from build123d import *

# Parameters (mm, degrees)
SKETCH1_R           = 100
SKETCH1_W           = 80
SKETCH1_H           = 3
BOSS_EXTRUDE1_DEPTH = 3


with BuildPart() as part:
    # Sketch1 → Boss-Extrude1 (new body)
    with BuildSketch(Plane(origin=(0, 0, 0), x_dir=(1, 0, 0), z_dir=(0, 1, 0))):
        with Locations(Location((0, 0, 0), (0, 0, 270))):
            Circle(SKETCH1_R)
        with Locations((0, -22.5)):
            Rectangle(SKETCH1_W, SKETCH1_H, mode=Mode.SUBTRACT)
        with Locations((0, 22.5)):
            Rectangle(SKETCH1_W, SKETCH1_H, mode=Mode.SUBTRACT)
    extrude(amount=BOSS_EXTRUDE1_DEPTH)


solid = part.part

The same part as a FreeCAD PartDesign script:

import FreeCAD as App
import Part
import Sketcher

V = App.Vector


def add_polygon(sketch, points):
    """Adds a closed chain of lines whose ends are joined by coincident constraints."""
    first, n = sketch.GeometryCount, len(points)
    for a, b in zip(points, points[1:] + points[:1]):
        sketch.addGeometry(Part.LineSegment(App.Vector(*a, 0), App.Vector(*b, 0)), False)
    for i in range(n):
        sketch.addConstraint(Sketcher.Constraint("Coincident", first + i, 2, first + (i + 1) % n, 1))

doc = App.newDocument("Part")
body = doc.addObject("PartDesign::Body", "Body")

# Sketch on XZ plane
sketch1 = body.newObject("Sketcher::SketchObject", "Sketch")
sketch1.AttachmentSupport = (doc.getObject("XZ_Plane"), [""])
sketch1.MapMode = "FlatFace"
sketch1.addGeometry(Part.Circle(V(0, 0, 0), V(0, 0, 1), 100), False)  # 0
add_polygon(sketch1, [(40, -21), (-40, -21), (-40, -24), (40, -24)])  # lines 1-4
add_polygon(sketch1, [(40, 24), (-40, 24), (-40, 21), (40, 21)])  # lines 5-8
sketch1.addConstraint([
    Sketcher.Constraint("Horizontal", 1),
    Sketcher.Constraint("Vertical", 2),
    Sketcher.Constraint("Horizontal", 3),
    Sketcher.Constraint("Vertical", 4),
    Sketcher.Constraint("Horizontal", 5),
    Sketcher.Constraint("Vertical", 6),
    Sketcher.Constraint("Horizontal", 7),
    Sketcher.Constraint("Vertical", 8),
    Sketcher.Constraint("Coincident", 0, 3, -1, 1),
    Sketcher.Constraint("Symmetric", 3, 2, 5, 2, -1, 1),
    Sketcher.Constraint("Symmetric", 1, 2, 7, 2, -1, 1),
    Sketcher.Constraint("Vertical", 2, 2, 5, 2),
    Sketcher.Constraint("Diameter", 0, 200.0),
    Sketcher.Constraint("DistanceX", 1, 2, 1, 1, 80.0),
    Sketcher.Constraint("DistanceY", 2, 2, 2, 1, 3.0),
    Sketcher.Constraint("DistanceY", 1, 2, -1, 1, 21.0),
])
pad1 = body.newObject("PartDesign::Pad", "Pad")
pad1.Profile = sketch1
pad1.Length = 3
pad1.Reversed = True

doc.recompute()
